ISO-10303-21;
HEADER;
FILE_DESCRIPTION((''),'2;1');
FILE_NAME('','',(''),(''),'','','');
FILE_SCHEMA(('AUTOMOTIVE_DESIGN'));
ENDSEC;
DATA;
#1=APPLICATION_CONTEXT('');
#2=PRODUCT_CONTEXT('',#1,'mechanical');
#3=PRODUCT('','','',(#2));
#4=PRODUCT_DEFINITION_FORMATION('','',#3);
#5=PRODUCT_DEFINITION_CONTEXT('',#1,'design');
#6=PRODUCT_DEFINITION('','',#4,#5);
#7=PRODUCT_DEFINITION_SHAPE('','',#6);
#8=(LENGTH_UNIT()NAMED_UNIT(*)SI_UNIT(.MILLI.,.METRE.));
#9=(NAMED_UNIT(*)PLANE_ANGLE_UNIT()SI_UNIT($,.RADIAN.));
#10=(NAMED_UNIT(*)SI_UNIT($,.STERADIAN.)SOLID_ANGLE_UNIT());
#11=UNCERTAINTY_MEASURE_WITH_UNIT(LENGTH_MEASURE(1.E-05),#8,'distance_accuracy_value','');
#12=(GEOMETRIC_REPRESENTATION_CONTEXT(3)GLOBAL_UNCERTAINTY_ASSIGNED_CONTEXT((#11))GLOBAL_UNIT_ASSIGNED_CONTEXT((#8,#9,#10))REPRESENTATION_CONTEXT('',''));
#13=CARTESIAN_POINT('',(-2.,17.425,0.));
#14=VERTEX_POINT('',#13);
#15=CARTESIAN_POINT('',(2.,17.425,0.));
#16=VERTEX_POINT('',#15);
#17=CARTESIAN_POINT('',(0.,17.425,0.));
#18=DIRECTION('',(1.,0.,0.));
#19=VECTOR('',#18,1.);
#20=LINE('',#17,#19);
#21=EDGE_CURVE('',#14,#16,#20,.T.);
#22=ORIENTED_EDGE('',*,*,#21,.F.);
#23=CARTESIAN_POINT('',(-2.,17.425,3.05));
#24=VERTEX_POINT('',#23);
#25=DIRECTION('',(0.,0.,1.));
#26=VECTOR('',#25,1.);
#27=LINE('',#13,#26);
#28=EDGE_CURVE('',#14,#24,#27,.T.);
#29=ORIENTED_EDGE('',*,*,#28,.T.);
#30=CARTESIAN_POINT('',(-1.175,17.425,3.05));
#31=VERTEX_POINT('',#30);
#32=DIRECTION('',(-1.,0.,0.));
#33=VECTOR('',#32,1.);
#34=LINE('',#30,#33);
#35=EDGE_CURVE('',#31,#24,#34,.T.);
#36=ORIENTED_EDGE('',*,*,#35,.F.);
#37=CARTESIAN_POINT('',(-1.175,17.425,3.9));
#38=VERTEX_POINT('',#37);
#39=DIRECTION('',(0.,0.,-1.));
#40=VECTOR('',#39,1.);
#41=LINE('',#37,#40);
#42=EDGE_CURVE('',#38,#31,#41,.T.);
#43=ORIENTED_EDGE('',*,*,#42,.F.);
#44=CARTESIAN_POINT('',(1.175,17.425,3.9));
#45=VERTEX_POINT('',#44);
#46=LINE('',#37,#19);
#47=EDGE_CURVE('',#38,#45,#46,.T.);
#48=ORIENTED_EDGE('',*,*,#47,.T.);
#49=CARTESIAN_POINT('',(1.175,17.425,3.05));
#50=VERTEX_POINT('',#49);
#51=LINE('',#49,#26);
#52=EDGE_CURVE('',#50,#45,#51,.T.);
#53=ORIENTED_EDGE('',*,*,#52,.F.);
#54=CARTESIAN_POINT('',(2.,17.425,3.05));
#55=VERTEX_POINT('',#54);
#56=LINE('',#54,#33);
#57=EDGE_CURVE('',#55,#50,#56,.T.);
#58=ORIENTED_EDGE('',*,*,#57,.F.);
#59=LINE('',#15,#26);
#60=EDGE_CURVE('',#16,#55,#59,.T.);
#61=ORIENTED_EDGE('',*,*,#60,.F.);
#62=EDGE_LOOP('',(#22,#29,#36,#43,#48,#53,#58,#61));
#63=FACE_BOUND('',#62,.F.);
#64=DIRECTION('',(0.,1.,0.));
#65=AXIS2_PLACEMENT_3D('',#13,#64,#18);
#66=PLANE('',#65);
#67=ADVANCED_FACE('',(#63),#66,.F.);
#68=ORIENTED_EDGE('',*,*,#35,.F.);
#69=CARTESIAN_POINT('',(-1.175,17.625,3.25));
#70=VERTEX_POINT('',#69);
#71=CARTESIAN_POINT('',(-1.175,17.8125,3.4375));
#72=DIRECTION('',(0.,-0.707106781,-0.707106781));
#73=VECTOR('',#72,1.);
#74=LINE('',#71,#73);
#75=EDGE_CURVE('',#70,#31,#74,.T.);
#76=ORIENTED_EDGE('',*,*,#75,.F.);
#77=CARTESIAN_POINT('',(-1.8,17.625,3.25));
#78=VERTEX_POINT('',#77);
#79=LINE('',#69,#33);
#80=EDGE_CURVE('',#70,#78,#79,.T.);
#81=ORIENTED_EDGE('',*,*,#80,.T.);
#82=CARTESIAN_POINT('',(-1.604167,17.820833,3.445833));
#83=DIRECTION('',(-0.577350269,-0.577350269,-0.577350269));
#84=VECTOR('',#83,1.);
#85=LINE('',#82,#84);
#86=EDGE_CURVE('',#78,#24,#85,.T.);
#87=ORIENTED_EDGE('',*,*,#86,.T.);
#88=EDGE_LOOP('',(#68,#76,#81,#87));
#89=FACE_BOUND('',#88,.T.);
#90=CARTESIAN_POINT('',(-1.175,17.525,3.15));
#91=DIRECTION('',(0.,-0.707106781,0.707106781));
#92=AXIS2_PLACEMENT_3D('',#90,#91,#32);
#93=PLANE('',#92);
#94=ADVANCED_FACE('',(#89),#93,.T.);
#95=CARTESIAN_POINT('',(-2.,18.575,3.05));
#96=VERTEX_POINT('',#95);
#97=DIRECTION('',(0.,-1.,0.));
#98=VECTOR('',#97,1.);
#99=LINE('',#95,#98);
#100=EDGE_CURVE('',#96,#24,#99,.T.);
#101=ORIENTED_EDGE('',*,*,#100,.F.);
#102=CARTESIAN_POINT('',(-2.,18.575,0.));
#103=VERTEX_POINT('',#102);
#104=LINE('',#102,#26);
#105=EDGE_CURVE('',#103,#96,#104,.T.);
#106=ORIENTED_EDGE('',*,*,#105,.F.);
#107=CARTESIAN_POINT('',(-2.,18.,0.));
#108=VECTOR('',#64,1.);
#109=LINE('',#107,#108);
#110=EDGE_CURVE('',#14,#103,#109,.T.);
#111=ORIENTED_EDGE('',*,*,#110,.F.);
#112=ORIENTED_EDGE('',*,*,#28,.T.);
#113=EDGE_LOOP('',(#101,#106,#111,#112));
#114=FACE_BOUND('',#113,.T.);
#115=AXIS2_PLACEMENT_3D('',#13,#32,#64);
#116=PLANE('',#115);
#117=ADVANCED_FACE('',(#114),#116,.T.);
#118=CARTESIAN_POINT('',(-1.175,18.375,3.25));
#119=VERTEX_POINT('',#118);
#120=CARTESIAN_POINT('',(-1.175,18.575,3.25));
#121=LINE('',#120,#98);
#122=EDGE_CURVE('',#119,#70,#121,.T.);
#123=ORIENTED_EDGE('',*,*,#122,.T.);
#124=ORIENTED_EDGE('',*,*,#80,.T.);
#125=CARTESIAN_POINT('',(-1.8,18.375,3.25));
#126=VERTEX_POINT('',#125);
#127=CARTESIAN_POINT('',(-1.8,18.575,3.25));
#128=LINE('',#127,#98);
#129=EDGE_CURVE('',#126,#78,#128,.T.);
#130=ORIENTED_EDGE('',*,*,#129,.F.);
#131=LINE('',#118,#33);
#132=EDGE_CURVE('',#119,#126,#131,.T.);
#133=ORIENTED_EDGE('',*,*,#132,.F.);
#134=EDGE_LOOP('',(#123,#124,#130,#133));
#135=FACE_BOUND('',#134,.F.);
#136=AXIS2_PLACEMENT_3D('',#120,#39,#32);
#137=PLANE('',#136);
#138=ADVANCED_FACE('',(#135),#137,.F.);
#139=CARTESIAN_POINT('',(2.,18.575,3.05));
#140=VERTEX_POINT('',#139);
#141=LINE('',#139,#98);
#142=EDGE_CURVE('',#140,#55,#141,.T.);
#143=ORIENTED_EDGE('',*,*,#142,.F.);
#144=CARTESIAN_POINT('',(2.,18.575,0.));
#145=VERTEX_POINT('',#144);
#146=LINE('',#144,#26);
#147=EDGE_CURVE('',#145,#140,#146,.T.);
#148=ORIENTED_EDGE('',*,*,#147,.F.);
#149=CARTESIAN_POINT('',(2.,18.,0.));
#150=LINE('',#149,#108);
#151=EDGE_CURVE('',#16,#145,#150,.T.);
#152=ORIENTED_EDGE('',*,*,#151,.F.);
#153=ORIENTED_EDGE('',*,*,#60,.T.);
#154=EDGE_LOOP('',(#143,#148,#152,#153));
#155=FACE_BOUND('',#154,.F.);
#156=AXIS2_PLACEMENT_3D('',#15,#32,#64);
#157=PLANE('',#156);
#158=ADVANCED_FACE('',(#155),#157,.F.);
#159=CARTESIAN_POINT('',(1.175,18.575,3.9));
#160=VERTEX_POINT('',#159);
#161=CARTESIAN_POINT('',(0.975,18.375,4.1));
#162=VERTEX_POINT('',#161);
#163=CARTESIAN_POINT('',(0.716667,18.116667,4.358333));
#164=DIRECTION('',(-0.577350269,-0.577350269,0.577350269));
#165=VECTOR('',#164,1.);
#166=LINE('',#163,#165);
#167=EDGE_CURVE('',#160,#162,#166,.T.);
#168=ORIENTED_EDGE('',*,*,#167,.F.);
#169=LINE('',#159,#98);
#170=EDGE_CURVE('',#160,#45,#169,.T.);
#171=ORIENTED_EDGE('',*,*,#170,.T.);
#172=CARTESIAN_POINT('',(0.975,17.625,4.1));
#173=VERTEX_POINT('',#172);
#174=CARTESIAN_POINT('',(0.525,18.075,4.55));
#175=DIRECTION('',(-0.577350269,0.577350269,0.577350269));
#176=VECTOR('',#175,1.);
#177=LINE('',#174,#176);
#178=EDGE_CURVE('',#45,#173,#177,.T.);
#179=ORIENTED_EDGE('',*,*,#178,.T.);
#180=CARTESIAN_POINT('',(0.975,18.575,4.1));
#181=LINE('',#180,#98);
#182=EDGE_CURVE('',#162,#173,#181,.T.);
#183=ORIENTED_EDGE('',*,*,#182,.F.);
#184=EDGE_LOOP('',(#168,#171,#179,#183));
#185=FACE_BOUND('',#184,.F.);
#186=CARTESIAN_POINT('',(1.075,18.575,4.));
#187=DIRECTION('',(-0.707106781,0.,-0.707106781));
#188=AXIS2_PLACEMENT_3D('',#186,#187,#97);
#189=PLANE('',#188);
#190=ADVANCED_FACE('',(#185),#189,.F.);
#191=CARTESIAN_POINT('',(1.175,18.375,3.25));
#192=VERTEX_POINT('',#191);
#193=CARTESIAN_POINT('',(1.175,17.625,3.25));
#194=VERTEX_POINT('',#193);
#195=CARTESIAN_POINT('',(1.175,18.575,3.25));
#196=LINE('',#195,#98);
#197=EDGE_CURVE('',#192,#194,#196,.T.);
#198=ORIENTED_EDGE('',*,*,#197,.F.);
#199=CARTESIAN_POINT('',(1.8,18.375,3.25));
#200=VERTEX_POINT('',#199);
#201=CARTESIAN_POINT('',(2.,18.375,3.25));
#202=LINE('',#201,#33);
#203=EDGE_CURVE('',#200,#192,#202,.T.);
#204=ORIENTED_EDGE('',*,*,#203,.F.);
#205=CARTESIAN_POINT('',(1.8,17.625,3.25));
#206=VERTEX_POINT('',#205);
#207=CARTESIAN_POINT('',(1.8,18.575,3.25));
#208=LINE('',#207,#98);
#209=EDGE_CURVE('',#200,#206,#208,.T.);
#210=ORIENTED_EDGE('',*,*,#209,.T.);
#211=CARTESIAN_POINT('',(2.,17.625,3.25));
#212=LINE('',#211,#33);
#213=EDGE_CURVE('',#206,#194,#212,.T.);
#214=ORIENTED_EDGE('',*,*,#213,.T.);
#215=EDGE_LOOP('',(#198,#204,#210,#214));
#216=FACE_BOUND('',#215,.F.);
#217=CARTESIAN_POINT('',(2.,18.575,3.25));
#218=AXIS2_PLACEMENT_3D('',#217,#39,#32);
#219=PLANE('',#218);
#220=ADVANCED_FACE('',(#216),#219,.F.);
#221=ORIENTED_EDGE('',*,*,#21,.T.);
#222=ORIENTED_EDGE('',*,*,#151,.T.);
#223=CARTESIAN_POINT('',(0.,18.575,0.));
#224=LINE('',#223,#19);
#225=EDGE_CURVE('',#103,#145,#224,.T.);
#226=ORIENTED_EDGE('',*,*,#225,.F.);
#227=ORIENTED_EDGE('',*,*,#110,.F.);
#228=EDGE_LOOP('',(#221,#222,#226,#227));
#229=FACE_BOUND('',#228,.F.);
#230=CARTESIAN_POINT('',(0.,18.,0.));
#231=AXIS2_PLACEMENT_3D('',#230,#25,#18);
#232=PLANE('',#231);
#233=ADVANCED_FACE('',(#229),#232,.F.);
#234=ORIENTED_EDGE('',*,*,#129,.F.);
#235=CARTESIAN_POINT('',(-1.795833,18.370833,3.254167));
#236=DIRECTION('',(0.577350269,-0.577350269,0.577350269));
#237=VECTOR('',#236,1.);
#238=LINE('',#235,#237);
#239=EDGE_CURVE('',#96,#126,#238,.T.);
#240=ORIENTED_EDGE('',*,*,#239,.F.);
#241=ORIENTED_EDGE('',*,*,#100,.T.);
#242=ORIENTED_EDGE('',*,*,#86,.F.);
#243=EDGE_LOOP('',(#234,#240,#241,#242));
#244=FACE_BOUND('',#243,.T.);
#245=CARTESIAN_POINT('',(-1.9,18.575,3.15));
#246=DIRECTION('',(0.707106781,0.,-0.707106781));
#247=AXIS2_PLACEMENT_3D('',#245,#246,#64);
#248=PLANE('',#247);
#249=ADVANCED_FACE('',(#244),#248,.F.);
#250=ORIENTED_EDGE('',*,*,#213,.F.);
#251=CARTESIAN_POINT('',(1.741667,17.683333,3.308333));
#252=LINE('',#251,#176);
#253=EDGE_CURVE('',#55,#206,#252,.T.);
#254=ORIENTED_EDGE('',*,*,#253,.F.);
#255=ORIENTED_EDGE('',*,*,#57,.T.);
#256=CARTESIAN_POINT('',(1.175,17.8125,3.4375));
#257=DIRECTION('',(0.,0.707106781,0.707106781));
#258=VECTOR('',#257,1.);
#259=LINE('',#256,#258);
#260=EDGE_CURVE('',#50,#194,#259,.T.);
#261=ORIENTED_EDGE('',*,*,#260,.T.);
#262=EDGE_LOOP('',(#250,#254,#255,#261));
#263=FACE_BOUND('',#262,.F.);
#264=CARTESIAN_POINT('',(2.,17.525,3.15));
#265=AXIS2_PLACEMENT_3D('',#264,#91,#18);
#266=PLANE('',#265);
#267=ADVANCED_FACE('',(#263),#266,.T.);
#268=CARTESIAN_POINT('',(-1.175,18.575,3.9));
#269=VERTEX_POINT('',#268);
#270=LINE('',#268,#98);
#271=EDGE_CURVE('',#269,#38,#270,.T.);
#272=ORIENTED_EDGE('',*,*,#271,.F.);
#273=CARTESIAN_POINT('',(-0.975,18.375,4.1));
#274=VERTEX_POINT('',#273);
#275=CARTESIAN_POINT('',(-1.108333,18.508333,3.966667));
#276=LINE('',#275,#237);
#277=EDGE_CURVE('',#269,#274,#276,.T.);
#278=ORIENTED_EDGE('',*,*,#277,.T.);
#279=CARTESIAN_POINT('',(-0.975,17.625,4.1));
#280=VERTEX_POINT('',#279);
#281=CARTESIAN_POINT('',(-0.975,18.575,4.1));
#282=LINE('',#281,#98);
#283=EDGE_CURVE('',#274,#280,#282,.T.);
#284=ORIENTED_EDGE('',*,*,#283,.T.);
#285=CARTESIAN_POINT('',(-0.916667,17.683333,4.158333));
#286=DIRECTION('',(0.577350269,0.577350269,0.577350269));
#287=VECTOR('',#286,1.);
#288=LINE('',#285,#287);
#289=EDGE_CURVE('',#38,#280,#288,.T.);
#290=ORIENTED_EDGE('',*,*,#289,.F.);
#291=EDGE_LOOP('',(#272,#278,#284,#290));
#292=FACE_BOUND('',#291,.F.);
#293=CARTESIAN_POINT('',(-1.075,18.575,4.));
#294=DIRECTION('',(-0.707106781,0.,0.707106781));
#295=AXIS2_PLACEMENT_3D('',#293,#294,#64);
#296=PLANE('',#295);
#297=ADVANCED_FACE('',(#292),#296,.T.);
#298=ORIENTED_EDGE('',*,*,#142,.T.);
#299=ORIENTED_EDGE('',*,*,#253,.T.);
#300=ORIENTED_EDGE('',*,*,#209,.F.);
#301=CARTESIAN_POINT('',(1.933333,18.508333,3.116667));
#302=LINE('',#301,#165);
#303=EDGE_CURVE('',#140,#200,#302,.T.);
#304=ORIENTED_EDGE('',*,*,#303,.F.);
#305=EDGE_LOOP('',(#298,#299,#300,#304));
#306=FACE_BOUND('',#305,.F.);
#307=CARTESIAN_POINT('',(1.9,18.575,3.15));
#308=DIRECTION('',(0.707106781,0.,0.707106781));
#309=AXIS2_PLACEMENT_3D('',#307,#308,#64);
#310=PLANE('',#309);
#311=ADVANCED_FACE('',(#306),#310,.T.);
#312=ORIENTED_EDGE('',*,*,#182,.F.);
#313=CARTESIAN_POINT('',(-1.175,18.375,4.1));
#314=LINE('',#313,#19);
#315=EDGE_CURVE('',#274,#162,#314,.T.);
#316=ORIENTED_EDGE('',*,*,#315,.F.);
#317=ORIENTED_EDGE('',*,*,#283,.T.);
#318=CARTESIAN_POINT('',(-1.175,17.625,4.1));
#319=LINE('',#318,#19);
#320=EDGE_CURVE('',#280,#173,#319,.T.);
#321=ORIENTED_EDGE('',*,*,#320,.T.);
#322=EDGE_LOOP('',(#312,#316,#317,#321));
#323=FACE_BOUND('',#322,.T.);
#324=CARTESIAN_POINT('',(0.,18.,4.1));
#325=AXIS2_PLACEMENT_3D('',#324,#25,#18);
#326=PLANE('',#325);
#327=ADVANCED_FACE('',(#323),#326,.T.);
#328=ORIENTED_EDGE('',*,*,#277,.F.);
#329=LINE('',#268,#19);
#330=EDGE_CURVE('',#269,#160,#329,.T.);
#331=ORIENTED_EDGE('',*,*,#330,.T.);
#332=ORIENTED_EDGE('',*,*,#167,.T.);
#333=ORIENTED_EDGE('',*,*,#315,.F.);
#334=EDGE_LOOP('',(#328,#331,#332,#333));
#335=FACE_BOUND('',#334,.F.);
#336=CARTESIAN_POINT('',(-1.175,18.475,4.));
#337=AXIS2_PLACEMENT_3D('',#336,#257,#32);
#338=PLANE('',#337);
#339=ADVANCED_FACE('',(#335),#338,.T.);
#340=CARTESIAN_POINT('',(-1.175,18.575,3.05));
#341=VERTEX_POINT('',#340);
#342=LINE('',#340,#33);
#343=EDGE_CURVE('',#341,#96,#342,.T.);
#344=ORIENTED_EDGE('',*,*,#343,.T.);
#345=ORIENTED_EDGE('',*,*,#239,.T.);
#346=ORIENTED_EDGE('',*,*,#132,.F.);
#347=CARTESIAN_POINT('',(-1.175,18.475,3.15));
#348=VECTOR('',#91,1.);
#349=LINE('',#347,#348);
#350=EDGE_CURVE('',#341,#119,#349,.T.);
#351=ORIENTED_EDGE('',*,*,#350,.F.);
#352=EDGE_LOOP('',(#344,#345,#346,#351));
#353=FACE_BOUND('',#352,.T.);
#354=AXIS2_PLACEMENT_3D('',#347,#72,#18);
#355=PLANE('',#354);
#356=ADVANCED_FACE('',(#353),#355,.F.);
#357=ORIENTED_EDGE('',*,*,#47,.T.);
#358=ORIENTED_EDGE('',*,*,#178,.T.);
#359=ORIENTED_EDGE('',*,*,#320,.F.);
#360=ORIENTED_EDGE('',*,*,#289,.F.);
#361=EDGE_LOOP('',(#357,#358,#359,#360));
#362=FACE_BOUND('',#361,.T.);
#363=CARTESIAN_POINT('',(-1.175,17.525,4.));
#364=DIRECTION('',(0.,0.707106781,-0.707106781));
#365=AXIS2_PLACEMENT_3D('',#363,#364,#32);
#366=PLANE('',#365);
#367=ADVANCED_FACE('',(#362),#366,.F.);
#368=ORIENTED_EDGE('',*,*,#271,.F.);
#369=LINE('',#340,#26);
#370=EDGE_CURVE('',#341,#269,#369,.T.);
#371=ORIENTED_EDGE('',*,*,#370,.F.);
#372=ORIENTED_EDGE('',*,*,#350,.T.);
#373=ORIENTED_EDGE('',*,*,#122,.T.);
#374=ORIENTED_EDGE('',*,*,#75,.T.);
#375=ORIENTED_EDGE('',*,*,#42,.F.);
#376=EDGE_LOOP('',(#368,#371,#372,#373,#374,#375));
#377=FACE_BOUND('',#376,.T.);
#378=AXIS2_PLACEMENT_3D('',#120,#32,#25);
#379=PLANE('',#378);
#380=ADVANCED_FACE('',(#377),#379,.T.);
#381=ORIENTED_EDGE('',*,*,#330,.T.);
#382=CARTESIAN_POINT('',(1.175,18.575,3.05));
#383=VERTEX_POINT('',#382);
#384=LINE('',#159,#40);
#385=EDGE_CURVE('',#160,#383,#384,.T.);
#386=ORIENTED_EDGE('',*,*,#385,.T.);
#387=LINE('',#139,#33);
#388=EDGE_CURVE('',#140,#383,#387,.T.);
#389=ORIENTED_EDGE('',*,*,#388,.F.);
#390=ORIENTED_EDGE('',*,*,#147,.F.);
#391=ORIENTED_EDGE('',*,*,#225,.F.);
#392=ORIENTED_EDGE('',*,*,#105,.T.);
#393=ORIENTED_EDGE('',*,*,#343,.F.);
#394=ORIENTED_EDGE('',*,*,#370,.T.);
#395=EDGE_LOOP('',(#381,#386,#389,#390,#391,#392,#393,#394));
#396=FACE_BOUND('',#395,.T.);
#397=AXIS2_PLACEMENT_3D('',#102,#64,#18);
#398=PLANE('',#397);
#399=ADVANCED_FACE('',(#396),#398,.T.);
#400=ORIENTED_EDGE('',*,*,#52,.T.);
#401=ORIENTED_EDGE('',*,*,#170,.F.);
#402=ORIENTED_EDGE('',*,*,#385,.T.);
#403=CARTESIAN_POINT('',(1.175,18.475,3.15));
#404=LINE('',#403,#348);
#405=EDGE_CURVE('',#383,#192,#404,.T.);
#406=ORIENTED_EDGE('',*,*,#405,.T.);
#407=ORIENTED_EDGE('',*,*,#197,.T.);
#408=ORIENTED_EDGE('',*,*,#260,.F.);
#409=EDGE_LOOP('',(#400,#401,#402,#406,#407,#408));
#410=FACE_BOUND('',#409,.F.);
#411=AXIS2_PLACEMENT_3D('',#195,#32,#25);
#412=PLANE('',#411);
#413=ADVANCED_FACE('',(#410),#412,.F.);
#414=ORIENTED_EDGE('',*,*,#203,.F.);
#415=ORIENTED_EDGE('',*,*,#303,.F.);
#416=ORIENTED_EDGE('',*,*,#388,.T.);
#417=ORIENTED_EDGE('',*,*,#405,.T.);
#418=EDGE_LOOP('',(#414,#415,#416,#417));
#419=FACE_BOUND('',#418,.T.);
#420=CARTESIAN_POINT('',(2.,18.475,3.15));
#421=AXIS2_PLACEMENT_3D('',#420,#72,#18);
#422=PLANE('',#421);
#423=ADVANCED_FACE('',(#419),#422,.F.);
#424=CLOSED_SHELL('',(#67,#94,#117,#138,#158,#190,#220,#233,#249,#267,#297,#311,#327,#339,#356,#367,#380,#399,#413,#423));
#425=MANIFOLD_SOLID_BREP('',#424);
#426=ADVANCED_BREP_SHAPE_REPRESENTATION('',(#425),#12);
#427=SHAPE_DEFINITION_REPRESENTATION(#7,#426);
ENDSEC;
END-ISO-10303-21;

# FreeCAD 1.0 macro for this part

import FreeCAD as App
import Part
import Sketcher
from FreeCAD import Vector
Q = App.Units.Quantity


def edges_at(feature, points):
    """Names of the edges that pass closest to the given points."""
    edges = feature.Shape.Edges
    near = lambda p: min(range(len(edges)), key=lambda i: edges[i].distToShape(Part.Vertex(*p))[0])
    return sorted({f"Edge{near(p) + 1}" for p in points})


def add_polygon(sketch, points):
    """Adds a closed chain of lines whose ends are joined by coincident constraints."""
    first, n = sketch.GeometryCount, len(points)
    for a, b in zip(points, points[1:] + points[:1]):
        sketch.addGeometry(Part.LineSegment(App.Vector(*a, 0), App.Vector(*b, 0)), False)
    for i in range(n):
        sketch.addConstraint(Sketcher.Constraint("Coincident", first + i, 2, first + (i + 1) % n, 1))

doc = App.newDocument("Part")
body = doc.addObject("PartDesign::Body", "Body")

sketch1 = body.newObject("Sketcher::SketchObject", "Sketch")
sketch1.AttachmentSupport = (doc.getObject("XY_Plane"), [""])
sketch1.MapMode = "FlatFace"
add_polygon(sketch1, [(-2, 0.6), (-2, -0.6), (2, -0.6), (2, 0.6)])
sketch1.addConstraint([
    Sketcher.Constraint("Vertical", 0),
    Sketcher.Constraint("Horizontal", 1),
    Sketcher.Constraint("Vertical", 2),
    Sketcher.Constraint("Horizontal", 3),
    Sketcher.Constraint("Symmetric", 0, 2, 2, 2, -1, 1),
    Sketcher.Constraint("DistanceX", 1, 1, 1, 2, Q("4 mm")),
    Sketcher.Constraint("DistanceY", 0, 2, 0, 1, Q("1.15 mm")),
])
pad1 = body.newObject("PartDesign::Pad", "Pad")
pad1.Profile = sketch1
pad1.Length = 4.1

sketch2 = body.newObject("Sketcher::SketchObject", "Sketch001")
sketch2.AttachmentSupport = (doc.getObject("XZ_Plane"), [""])
sketch2.MapMode = "FlatFace"
sketch2.AttachmentOffset = App.Placement(Vector(0, 0, -0.575), App.Rotation())
add_polygon(sketch2, [(2, 4.1), (2, 3.2), (1.2, 3.2), (1.2, 4.1)])
add_polygon(sketch2, [(-1.2, 4.1), (-1.2, 3.2), (-2, 3.2), (-2, 4.1)])
sketch2.addConstraint([
    Sketcher.Constraint("Vertical", 0),
    Sketcher.Constraint("Horizontal", 1),
    Sketcher.Constraint("Vertical", 2),
    Sketcher.Constraint("Horizontal", 3),
    Sketcher.Constraint("Vertical", 4),
    Sketcher.Constraint("Horizontal", 5),
    Sketcher.Constraint("Vertical", 6),
    Sketcher.Constraint("Horizontal", 7),
    Sketcher.Constraint("Symmetric", 1, 2, 4, 2, -2),
    Sketcher.Constraint("Symmetric", 3, 2, 6, 2, -2),
    Sketcher.Constraint("DistanceX", -1, 1, 0, 2, Q("2 mm")),
    Sketcher.Constraint("DistanceY", 0, 2, 0, 1, Q("0.85 mm")),
    Sketcher.Constraint("DistanceY", -1, 1, 2, 2, Q("4.1 mm")),
    Sketcher.Constraint("DistanceX", 1, 2, 1, 1, Q("0.825 mm")),
])
pocket1 = body.newObject("PartDesign::Pocket", "Pocket")
pocket1.Profile = sketch2
pocket1.Length = 5
pocket1.Reversed = True
doc.recompute()

chamfer = body.newObject("PartDesign::Chamfer", "Chamfer")
chamfer.Base = (pocket1, edges_at(pocket1, [
    (0, 0.575, 4.1),
    (0, -0.575, 4.1),
    (1.587, 0.575, 3.25),
    (-1.587, 0.575, 3.25),
    (-1.587, -0.575, 3.25),
    (1.587, -0.575, 3.25),
    (2, 0, 3.25),
    (-2, 0, 3.25),
    (1.175, 0, 4.1),
    (-1.175, 0, 4.1),
]))
chamfer.Size = 0.2
body2 = doc.addObject("PartDesign::Body", "Body001")
doc.recompute()

body.Placement = App.Placement(Vector(0, 18, 0), App.Rotation(Vector(0, 0, 1), 0))
boolean = body2.newObject("PartDesign::Boolean", "Boolean")
boolean.Type = "Fuse"
boolean.addObjects([body])

doc.recompute()
